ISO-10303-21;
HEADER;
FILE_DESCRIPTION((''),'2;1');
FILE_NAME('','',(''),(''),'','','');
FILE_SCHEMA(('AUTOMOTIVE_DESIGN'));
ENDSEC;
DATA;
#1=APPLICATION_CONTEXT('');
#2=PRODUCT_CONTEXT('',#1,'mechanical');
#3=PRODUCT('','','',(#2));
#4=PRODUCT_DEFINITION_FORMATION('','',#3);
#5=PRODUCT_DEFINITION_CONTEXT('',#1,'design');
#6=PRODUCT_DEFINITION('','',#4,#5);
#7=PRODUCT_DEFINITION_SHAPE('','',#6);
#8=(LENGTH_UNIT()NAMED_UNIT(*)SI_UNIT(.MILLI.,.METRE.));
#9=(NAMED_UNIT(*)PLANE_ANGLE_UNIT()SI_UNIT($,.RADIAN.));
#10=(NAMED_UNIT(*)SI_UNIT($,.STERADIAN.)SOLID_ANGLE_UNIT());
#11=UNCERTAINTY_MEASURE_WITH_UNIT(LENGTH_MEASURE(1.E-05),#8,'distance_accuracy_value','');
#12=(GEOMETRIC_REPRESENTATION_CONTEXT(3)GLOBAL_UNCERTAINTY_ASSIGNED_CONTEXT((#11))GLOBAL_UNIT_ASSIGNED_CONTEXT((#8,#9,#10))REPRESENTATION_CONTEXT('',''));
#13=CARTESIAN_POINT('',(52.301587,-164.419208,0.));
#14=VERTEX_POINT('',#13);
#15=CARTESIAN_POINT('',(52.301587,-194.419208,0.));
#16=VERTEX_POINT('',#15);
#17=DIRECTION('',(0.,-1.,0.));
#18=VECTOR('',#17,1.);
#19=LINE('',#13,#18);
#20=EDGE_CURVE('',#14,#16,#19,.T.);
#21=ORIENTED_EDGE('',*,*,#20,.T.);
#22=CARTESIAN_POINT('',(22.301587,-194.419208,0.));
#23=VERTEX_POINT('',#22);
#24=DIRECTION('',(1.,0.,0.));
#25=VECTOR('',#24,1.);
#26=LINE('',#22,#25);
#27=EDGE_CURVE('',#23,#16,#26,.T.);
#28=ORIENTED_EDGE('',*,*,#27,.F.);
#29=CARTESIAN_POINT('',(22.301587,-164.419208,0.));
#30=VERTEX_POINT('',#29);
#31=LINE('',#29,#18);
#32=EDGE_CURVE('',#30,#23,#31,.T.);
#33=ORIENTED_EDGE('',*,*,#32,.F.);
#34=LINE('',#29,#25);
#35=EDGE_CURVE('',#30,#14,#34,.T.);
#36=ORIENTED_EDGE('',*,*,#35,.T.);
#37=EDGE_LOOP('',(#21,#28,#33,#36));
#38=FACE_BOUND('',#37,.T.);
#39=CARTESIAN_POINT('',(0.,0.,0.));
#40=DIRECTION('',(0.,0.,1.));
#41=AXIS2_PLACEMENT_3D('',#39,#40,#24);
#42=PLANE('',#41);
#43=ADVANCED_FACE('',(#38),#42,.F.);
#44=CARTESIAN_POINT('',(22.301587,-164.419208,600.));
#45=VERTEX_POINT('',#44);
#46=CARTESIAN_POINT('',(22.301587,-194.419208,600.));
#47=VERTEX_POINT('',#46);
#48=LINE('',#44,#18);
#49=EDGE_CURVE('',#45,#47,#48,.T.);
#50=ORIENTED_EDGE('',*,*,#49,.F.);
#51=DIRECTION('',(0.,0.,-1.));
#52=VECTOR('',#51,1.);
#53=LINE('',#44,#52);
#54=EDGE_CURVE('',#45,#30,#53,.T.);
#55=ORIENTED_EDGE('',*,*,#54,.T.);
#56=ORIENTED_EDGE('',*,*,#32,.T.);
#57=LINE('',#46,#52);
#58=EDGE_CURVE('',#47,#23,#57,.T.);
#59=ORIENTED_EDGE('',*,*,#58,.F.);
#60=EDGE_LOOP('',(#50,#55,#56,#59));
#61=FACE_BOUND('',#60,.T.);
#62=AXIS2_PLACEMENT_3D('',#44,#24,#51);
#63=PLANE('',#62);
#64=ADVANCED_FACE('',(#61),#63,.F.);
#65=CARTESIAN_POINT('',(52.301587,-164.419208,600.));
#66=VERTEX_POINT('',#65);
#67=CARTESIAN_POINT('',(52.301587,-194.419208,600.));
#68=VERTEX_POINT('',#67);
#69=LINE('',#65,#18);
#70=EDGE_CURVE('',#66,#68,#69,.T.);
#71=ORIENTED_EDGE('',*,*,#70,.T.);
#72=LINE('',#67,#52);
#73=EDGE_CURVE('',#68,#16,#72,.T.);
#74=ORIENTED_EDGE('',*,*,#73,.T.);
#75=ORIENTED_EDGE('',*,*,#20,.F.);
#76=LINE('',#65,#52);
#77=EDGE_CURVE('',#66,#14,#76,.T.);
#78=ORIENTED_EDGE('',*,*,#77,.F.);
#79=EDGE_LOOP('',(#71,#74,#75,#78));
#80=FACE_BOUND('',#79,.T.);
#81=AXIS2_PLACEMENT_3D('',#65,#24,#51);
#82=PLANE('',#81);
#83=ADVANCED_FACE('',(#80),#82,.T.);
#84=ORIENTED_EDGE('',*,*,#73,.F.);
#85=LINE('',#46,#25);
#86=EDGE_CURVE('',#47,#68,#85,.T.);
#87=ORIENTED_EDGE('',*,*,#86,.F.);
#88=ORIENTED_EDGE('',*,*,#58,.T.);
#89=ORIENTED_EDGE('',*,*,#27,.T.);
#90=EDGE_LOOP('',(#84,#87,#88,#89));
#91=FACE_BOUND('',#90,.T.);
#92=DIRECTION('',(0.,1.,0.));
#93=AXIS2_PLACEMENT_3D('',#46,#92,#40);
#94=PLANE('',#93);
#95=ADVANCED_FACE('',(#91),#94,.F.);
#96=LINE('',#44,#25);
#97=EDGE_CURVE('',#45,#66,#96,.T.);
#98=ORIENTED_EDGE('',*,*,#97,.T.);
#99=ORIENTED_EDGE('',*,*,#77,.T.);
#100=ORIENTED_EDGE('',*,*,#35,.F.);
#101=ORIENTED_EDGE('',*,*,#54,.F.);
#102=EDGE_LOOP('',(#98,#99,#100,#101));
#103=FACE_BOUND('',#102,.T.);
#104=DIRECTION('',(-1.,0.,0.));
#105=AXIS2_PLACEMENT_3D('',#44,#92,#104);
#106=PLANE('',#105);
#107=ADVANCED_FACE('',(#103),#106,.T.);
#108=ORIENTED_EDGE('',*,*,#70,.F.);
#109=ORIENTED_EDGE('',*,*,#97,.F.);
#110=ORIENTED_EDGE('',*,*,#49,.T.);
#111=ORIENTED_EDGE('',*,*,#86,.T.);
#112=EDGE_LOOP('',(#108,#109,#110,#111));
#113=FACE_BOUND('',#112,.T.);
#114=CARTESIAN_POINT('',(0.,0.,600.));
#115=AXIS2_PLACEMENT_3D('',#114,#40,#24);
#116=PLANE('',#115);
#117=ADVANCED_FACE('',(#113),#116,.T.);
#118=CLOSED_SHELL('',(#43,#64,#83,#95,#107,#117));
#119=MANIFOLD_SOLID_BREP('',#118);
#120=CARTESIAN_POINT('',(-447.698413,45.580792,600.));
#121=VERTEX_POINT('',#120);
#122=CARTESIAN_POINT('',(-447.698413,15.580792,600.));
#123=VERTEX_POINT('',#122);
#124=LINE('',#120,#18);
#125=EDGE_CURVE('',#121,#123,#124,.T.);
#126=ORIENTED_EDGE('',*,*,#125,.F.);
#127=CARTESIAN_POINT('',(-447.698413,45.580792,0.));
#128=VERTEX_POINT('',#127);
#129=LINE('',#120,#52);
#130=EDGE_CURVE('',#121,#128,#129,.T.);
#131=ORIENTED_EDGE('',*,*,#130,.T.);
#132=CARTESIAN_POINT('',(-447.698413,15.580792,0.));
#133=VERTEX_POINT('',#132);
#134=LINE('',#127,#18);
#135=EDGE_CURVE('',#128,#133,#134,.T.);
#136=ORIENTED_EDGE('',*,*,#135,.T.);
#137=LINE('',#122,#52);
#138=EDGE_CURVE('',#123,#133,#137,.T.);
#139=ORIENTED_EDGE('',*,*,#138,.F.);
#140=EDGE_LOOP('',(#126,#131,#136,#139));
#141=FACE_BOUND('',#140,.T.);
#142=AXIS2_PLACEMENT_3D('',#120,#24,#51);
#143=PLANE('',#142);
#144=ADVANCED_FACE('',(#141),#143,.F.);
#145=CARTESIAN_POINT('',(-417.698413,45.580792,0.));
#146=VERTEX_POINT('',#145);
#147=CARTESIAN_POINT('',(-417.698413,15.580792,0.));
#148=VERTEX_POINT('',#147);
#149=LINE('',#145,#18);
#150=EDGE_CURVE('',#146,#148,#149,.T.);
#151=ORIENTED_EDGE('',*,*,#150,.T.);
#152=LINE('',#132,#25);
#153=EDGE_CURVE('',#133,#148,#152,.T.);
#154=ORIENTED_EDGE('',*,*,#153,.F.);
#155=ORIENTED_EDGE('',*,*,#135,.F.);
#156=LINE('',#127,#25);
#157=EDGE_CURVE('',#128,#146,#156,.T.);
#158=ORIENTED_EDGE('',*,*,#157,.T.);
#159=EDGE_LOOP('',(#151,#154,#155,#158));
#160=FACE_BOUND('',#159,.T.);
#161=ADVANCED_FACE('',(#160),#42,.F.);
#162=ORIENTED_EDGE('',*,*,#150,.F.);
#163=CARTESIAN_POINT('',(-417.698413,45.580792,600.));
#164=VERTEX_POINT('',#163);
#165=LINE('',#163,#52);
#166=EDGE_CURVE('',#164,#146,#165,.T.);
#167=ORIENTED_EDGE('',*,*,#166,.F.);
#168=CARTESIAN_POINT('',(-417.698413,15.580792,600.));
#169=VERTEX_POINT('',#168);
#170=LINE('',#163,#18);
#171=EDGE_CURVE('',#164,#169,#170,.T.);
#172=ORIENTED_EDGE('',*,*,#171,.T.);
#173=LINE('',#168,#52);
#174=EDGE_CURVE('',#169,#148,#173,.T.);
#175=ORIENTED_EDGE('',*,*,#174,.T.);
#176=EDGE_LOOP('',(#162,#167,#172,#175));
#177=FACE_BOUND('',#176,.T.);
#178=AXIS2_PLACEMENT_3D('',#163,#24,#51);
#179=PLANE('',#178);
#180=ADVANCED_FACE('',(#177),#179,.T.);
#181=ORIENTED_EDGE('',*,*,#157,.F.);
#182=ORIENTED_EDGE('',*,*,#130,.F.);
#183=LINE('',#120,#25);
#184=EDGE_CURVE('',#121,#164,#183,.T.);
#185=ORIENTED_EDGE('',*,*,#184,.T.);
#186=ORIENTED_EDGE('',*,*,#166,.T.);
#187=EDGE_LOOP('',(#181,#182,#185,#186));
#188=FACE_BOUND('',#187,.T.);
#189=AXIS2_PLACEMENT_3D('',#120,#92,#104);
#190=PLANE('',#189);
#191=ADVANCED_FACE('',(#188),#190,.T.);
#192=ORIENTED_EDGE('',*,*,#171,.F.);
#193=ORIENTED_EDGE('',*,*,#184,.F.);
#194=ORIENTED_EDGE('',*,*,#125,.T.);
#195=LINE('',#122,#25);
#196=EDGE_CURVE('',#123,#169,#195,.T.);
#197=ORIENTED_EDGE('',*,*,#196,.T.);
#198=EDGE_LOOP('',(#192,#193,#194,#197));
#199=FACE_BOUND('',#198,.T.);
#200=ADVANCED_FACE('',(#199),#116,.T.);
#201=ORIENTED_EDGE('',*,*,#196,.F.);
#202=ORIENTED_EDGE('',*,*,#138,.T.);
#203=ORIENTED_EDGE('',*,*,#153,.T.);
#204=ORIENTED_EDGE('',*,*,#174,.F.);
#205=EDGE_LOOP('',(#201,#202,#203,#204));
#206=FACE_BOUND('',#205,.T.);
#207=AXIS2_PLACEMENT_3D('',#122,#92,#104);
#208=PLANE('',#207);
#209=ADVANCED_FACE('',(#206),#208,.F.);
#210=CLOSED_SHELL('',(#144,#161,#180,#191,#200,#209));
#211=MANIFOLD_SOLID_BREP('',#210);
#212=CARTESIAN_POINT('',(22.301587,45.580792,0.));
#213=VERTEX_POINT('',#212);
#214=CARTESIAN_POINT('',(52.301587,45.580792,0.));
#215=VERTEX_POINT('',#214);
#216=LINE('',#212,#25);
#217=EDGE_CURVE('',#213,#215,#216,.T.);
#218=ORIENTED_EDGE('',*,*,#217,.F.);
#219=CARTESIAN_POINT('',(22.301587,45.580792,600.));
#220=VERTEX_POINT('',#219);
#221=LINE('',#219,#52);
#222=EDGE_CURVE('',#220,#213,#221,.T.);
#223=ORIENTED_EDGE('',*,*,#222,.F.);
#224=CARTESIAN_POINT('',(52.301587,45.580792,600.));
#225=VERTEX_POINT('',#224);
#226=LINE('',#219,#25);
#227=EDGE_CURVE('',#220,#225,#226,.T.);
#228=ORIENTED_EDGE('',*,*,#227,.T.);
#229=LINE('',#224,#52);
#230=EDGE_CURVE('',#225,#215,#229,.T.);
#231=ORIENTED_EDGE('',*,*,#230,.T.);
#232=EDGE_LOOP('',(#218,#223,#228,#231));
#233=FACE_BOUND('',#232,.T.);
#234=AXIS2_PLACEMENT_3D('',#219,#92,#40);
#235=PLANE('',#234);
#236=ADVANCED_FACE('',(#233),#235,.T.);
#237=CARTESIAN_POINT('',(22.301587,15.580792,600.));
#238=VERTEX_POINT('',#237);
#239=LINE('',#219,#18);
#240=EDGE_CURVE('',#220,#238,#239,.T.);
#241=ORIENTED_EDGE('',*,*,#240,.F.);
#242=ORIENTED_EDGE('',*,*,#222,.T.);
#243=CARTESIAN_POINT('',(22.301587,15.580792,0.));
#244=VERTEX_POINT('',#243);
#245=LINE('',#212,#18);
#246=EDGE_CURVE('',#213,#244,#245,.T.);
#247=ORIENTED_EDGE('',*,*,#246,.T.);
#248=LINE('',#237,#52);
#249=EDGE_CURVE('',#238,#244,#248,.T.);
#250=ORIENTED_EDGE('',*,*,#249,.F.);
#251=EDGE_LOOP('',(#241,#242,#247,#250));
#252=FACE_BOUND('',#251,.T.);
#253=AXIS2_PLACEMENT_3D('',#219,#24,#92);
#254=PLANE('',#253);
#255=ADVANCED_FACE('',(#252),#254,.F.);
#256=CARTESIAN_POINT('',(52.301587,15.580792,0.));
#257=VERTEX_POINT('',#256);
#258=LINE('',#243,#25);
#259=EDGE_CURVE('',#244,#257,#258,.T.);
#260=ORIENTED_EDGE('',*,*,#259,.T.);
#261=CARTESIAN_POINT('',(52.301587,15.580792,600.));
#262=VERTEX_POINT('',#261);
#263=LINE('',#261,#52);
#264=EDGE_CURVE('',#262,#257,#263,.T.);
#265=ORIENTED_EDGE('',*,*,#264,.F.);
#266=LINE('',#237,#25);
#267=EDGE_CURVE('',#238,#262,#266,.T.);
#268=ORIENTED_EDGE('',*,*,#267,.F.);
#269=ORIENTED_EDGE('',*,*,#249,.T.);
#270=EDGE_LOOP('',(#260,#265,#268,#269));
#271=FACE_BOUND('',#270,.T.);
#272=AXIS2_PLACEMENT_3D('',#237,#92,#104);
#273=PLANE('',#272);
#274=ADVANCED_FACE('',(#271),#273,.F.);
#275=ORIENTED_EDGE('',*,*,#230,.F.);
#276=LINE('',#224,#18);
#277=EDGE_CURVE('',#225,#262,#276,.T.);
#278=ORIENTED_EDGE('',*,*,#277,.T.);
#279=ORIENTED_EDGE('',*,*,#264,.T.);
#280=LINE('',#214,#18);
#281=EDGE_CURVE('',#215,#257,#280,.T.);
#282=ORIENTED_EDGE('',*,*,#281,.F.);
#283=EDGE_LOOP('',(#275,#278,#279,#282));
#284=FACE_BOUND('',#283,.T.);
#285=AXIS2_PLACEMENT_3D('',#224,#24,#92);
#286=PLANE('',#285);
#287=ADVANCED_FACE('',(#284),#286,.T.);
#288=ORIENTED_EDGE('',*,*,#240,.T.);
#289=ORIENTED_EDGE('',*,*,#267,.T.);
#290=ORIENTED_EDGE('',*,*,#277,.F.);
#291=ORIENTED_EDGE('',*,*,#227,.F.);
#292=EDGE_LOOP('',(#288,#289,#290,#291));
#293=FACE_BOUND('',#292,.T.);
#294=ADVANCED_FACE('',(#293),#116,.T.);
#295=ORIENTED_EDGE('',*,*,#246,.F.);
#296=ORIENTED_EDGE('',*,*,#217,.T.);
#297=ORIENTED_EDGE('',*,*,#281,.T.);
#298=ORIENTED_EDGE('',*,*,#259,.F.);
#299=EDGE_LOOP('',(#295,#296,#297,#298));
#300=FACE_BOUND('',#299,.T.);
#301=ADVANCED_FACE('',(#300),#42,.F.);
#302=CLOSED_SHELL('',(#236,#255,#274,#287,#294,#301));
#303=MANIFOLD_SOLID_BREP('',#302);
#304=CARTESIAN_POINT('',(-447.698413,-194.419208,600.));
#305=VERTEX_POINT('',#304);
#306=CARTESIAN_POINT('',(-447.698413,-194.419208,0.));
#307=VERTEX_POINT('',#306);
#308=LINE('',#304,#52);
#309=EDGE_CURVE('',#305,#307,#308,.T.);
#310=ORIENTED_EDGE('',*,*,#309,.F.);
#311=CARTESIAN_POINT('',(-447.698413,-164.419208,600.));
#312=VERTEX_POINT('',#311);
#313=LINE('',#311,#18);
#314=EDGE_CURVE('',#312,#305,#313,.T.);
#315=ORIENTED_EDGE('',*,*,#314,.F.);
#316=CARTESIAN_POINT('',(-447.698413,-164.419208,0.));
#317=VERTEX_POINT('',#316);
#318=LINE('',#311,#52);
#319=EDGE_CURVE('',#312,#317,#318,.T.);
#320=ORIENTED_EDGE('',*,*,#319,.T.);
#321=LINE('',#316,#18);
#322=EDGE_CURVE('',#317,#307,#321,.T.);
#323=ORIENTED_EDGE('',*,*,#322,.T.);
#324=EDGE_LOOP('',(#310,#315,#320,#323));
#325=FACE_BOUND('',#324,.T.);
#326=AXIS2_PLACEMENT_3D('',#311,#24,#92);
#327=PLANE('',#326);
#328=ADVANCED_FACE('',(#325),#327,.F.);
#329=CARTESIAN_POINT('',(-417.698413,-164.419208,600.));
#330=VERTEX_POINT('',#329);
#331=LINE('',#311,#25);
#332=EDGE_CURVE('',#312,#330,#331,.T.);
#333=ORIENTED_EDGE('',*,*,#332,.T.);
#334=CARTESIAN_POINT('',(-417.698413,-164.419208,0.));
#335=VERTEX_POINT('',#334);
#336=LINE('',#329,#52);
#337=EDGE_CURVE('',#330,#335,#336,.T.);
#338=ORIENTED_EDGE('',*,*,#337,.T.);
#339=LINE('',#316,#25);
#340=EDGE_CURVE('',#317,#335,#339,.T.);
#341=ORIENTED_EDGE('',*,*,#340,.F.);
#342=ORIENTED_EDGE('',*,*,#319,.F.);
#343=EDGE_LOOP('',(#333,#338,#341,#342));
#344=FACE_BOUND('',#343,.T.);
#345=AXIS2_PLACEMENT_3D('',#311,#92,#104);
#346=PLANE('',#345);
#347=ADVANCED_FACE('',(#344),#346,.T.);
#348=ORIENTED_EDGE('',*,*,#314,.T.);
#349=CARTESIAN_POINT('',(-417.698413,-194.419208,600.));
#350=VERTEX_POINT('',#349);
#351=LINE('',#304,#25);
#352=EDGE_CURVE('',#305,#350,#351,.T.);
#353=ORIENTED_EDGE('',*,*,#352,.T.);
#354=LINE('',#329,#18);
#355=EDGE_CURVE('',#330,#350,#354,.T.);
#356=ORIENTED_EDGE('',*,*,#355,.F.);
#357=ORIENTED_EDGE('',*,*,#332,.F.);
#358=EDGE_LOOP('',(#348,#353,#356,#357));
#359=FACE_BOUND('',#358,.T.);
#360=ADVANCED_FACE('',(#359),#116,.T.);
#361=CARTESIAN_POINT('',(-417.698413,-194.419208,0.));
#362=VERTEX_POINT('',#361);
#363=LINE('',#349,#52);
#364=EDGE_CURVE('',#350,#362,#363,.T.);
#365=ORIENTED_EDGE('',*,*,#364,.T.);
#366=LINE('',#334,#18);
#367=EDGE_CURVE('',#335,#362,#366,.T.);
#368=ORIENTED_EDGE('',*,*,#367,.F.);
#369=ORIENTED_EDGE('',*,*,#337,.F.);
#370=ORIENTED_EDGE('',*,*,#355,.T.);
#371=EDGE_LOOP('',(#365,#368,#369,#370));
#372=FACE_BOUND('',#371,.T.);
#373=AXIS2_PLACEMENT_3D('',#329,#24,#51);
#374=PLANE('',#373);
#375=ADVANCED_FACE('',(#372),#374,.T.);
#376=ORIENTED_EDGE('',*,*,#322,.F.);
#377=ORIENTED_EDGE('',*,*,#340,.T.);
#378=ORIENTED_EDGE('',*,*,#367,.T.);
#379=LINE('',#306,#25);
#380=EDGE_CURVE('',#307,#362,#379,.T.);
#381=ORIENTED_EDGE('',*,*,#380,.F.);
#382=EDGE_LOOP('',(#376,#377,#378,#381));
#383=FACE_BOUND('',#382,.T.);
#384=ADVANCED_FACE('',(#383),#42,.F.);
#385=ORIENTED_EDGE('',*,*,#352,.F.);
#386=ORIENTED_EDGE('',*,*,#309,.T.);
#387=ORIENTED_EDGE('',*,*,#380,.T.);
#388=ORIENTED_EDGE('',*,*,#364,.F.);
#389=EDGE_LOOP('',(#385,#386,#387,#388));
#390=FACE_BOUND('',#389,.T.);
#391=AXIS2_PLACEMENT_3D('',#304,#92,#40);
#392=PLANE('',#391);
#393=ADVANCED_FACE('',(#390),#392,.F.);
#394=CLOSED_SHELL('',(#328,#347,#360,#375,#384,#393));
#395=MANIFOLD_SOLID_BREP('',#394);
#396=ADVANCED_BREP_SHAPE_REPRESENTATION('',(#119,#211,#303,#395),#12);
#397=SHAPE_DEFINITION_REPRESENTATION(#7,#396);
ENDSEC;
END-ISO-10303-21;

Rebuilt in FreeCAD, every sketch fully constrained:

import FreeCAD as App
import Part
import Sketcher
from FreeCAD import Vector


def add_polygon(sketch, points):
    """Adds a closed chain of lines whose ends are joined by coincident constraints."""
    first, n = sketch.GeometryCount, len(points)
    for a, b in zip(points, points[1:] + points[:1]):
        sketch.addGeometry(Part.LineSegment(App.Vector(*a, 0), App.Vector(*b, 0)), False)
    for i in range(n):
        sketch.addConstraint(Sketcher.Constraint("Coincident", first + i, 2, first + (i + 1) % n, 1))

doc = App.newDocument("Part")
body = doc.addObject("PartDesign::Body", "Body")

# Sketch on XY plane
sketch1 = body.newObject("Sketcher::SketchObject", "Sketch")
sketch1.AttachmentSupport = (doc.getObject("XY_Plane"), [""])
sketch1.MapMode = "FlatFace"
add_polygon(sketch1, [(-447.698413, 45.580792), (-447.698413, 15.580792), (-417.698413, 15.580792), (-417.698413, 45.580792)])  # lines 0-3
sketch1.addConstraint([
    Sketcher.Constraint("Vertical", 0),
    Sketcher.Constraint("Horizontal", 1),
    Sketcher.Constraint("Vertical", 2),
    Sketcher.Constraint("Horizontal", 3),
    Sketcher.Constraint("Equal", 3, 0),
    Sketcher.Constraint("DistanceX", 1, 1, 1, 2, 30.0),
    Sketcher.Constraint("DistanceY", -1, 1, 0, 2, 15.580792),
    Sketcher.Constraint("DistanceX", 0, 2, -1, 1, 447.698413),
])
pad1 = body.newObject("PartDesign::Pad", "Pad")
pad1.Profile = sketch1
pad1.Length = 600
body2 = doc.addObject("PartDesign::Body", "Body001")

# Sketch on XY plane
sketch2 = body2.newObject("Sketcher::SketchObject", "Sketch001")
sketch2.AttachmentSupport = (doc.getObject("XY_Plane001"), [""])
sketch2.MapMode = "FlatFace"
add_polygon(sketch2, [(22.301587, 45.580792), (22.301587, 15.580792), (52.301587, 15.580792), (52.301587, 45.580792)])  # lines 0-3
sketch2.addConstraint([
    Sketcher.Constraint("Vertical", 0),
    Sketcher.Constraint("Horizontal", 1),
    Sketcher.Constraint("Vertical", 2),
    Sketcher.Constraint("Horizontal", 3),
    Sketcher.Constraint("Equal", 3, 0),
    Sketcher.Constraint("DistanceX", 1, 1, 1, 2, 30.0),
    Sketcher.Constraint("DistanceY", -1, 1, 0, 2, 15.580792),
    Sketcher.Constraint("DistanceX", -1, 1, 0, 2, 22.301587),
])
pad2 = body2.newObject("PartDesign::Pad", "Pad001")
pad2.Profile = sketch2
pad2.Length = 600
body3 = doc.addObject("PartDesign::Body", "Body002")

# Sketch on XY plane
sketch3 = body3.newObject("Sketcher::SketchObject", "Sketch002")
sketch3.AttachmentSupport = (doc.getObject("XY_Plane002"), [""])
sketch3.MapMode = "FlatFace"
add_polygon(sketch3, [(-447.698413, -164.419208), (-447.698413, -194.419208), (-417.698413, -194.419208), (-417.698413, -164.419208)])  # lines 0-3
sketch3.addConstraint([
    Sketcher.Constraint("Vertical", 0),
    Sketcher.Constraint("Horizontal", 1),
    Sketcher.Constraint("Vertical", 2),
    Sketcher.Constraint("Horizontal", 3),
    Sketcher.Constraint("Equal", 3, 0),
    Sketcher.Constraint("DistanceX", 1, 1, 1, 2, 30.0),
    Sketcher.Constraint("DistanceY", 0, 2, -1, 1, 194.419208),
    Sketcher.Constraint("DistanceX", 0, 2, -1, 1, 447.698413),
])
pad3 = body3.newObject("PartDesign::Pad", "Pad002")
pad3.Profile = sketch3
pad3.Length = 600
body4 = doc.addObject("PartDesign::Body", "Body003")

# Sketch on XY plane
sketch4 = body4.newObject("Sketcher::SketchObject", "Sketch003")
sketch4.AttachmentSupport = (doc.getObject("XY_Plane003"), [""])
sketch4.MapMode = "FlatFace"
add_polygon(sketch4, [(22.301587, -164.419208), (22.301587, -194.419208), (52.301587, -194.419208), (52.301587, -164.419208)])  # lines 0-3
sketch4.addConstraint([
    Sketcher.Constraint("Vertical", 0),
    Sketcher.Constraint("Horizontal", 1),
    Sketcher.Constraint("Vertical", 2),
    Sketcher.Constraint("Horizontal", 3),
    Sketcher.Constraint("Equal", 3, 0),
    Sketcher.Constraint("DistanceX", 1, 1, 1, 2, 30.0),
    Sketcher.Constraint("DistanceY", 0, 2, -1, 1, 194.419208),
    Sketcher.Constraint("DistanceX", -1, 1, 0, 2, 22.301587),
])
pad4 = body4.newObject("PartDesign::Pad", "Pad003")
pad4.Profile = sketch4
pad4.Length = 600

doc.recompute()
